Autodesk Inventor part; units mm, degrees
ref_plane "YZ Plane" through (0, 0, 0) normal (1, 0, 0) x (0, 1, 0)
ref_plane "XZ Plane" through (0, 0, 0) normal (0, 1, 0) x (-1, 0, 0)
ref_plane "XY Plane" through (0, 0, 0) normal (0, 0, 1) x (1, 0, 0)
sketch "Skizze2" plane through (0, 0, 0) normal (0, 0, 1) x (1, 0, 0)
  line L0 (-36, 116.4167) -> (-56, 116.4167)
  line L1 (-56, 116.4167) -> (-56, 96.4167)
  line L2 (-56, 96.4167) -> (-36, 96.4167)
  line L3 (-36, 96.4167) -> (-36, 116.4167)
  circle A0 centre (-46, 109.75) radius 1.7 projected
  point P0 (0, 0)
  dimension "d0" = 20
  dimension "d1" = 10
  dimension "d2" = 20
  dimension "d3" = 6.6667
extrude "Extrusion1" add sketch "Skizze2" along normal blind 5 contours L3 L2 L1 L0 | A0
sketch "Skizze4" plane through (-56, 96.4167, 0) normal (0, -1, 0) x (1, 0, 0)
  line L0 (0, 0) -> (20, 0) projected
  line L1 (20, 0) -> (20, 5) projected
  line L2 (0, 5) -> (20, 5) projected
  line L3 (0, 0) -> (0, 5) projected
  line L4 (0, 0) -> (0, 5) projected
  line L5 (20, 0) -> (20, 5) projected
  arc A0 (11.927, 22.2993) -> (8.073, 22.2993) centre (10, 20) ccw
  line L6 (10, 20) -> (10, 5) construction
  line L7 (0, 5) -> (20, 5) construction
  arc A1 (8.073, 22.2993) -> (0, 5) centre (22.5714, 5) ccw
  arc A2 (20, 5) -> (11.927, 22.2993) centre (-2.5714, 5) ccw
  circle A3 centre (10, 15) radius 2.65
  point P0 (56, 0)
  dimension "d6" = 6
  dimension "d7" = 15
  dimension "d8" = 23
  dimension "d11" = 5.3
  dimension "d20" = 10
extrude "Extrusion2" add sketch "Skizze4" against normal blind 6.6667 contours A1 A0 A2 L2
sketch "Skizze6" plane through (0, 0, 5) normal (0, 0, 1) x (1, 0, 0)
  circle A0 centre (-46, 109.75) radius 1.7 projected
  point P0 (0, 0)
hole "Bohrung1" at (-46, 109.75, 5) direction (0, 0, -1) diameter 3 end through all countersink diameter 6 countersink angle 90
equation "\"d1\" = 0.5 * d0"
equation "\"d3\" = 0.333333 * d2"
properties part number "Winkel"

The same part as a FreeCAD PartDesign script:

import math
import FreeCAD as App
import Part
import Sketcher
Q = App.Units.Quantity

doc = App.newDocument("Part")
body = doc.addObject("PartDesign::Body", "Body")

# Sketch on XY plane
sketch1 = doc.addObject("Sketcher::SketchObject", "Sketch")
body.addObject(sketch1)
sketch1.AttachmentSupport = (doc.XY_Plane, [""])
sketch1.MapMode = "FlatFace"
sketch1.addGeometry([
    Part.LineSegment(App.Vector(-36, 96, 0), App.Vector(-36, 116, 0)),
    Part.LineSegment(App.Vector(-36, 116, 0), App.Vector(-56, 116, 0)),
    Part.LineSegment(App.Vector(-56, 116, 0), App.Vector(-56, 96, 0)),
    Part.LineSegment(App.Vector(-56, 96, 0), App.Vector(-36, 96, 0)),
], False)
sketch1.addConstraint([
    Sketcher.Constraint("Coincident", 0, 2, 1, 1),
    Sketcher.Constraint("Coincident", 1, 2, 2, 1),
    Sketcher.Constraint("Coincident", 2, 2, 3, 1),
    Sketcher.Constraint("Coincident", 3, 2, 0, 1),
    Sketcher.Constraint("Vertical", 0),
    Sketcher.Constraint("Horizontal", 1),
    Sketcher.Constraint("Vertical", 2),
    Sketcher.Constraint("Horizontal", 3),
    Sketcher.Constraint("Equal", 3, 0),
    Sketcher.Constraint("DistanceX", 1, 2, 1, 1, Q("20 mm")),
    Sketcher.Constraint("DistanceX", 0, 2, -1, 1, Q("36 mm")),
    Sketcher.Constraint("DistanceY", -1, 1, 0, 2, Q("116.4167 mm")),
])
pad1 = doc.addObject("PartDesign::Pad", "Pad")
body.addObject(pad1)
pad1.Profile = sketch1
pad1.Length = 5

# Sketch on XZ plane
sketch2 = doc.addObject("Sketcher::SketchObject", "Sketch001")
body.addObject(sketch2)
sketch2.AttachmentSupport = (doc.XZ_Plane, [""])
sketch2.MapMode = "FlatFace"
sketch2.AttachmentOffset = App.Placement(App.Vector(0, 0, -96.4167), App.Rotation())
sketch2.addGeometry([
    Part.ArcOfCircle(Part.Circle(App.Vector(-33.4, 5, 0), App.Vector(0, 0, 1), 22.6), math.radians(130), math.radians(180)),  # 0
    Part.LineSegment(App.Vector(-56, 5, 0), App.Vector(-36, 5, 0)),  # 1
    Part.ArcOfCircle(Part.Circle(App.Vector(-58.6, 5, 0), App.Vector(0, 0, 1), 22.6), math.radians(0), math.radians(50)),  # 2
    Part.ArcOfCircle(Part.Circle(App.Vector(-46, 20, 0), App.Vector(0, 0, 1), 3), math.radians(50), math.radians(130)),  # 3
    Part.Circle(App.Vector(-46, 15, 0), App.Vector(0, 0, 1), 2.6),  # 4
], False)
sketch2.addConstraint([
    Sketcher.Constraint("Coincident", 0, 2, 1, 1),
    Sketcher.Constraint("Coincident", 1, 2, 2, 1),
    Sketcher.Constraint("Tangent", 2, 2, 3, 1),
    Sketcher.Constraint("Tangent", 3, 2, 0, 1),
    Sketcher.Constraint("Horizontal", 1),
    Sketcher.Constraint("Equal", 0, 2),
    Sketcher.Constraint("Horizontal", 0, 3, 2, 3),
    Sketcher.Constraint("Horizontal", 2, 3, 0, 2),
    Sketcher.Constraint("Vertical", 3, 3, 4, 3),
    Sketcher.Constraint("Radius", 3, Q("3 mm")),
    Sketcher.Constraint("Diameter", 4, Q("5.3 mm")),
    Sketcher.Constraint("DistanceY", -1, 1, 4, 3, Q("15 mm")),
    Sketcher.Constraint("DistanceY", 0, 3, 3, 3, Q("15 mm")),
    Sketcher.Constraint("DistanceY", 0, 3, 4, 3, Q("10 mm")),
    Sketcher.Constraint("DistanceX", 0, 2, 4, 3, Q("10 mm")),
    Sketcher.Constraint("DistanceX", 3, 3, -1, 1, Q("46 mm")),
])
pad2 = doc.addObject("PartDesign::Pad", "Pad001")
body.addObject(pad2)
pad2.Profile = sketch2
pad2.Length = 6.6667
pad2.Reversed = True

# Sketch on XY plane
sketch3 = doc.addObject("Sketcher::SketchObject", "Sketch002")
body.addObject(sketch3)
sketch3.AttachmentSupport = (doc.XY_Plane, [""])
sketch3.MapMode = "FlatFace"
sketch3.AttachmentOffset = App.Placement(App.Vector(0, 0, 5), App.Rotation())
sketch3.addGeometry(Part.Circle(App.Vector(-46, 109.8, 0), App.Vector(0, 0, 1), 1.5), False)
sketch3.addConstraint([
    Sketcher.Constraint("Diameter", 0, Q("3 mm")),
    Sketcher.Constraint("DistanceX", 0, 3, -1, 1, Q("46 mm")),
    Sketcher.Constraint("DistanceY", -1, 1, 0, 3, Q("109.75 mm")),
])
doc.recompute()
hole = doc.addObject("PartDesign::Hole", "Hole")
body.addObject(hole)
hole.Profile = sketch3
hole.ThreadType = "None"
hole.Diameter = 3
hole.DepthType = "ThroughAll"
hole.HoleCutType = "Countersink"
hole.HoleCutDiameter = 6
hole.HoleCutCountersinkAngle = 90

doc.recompute()
